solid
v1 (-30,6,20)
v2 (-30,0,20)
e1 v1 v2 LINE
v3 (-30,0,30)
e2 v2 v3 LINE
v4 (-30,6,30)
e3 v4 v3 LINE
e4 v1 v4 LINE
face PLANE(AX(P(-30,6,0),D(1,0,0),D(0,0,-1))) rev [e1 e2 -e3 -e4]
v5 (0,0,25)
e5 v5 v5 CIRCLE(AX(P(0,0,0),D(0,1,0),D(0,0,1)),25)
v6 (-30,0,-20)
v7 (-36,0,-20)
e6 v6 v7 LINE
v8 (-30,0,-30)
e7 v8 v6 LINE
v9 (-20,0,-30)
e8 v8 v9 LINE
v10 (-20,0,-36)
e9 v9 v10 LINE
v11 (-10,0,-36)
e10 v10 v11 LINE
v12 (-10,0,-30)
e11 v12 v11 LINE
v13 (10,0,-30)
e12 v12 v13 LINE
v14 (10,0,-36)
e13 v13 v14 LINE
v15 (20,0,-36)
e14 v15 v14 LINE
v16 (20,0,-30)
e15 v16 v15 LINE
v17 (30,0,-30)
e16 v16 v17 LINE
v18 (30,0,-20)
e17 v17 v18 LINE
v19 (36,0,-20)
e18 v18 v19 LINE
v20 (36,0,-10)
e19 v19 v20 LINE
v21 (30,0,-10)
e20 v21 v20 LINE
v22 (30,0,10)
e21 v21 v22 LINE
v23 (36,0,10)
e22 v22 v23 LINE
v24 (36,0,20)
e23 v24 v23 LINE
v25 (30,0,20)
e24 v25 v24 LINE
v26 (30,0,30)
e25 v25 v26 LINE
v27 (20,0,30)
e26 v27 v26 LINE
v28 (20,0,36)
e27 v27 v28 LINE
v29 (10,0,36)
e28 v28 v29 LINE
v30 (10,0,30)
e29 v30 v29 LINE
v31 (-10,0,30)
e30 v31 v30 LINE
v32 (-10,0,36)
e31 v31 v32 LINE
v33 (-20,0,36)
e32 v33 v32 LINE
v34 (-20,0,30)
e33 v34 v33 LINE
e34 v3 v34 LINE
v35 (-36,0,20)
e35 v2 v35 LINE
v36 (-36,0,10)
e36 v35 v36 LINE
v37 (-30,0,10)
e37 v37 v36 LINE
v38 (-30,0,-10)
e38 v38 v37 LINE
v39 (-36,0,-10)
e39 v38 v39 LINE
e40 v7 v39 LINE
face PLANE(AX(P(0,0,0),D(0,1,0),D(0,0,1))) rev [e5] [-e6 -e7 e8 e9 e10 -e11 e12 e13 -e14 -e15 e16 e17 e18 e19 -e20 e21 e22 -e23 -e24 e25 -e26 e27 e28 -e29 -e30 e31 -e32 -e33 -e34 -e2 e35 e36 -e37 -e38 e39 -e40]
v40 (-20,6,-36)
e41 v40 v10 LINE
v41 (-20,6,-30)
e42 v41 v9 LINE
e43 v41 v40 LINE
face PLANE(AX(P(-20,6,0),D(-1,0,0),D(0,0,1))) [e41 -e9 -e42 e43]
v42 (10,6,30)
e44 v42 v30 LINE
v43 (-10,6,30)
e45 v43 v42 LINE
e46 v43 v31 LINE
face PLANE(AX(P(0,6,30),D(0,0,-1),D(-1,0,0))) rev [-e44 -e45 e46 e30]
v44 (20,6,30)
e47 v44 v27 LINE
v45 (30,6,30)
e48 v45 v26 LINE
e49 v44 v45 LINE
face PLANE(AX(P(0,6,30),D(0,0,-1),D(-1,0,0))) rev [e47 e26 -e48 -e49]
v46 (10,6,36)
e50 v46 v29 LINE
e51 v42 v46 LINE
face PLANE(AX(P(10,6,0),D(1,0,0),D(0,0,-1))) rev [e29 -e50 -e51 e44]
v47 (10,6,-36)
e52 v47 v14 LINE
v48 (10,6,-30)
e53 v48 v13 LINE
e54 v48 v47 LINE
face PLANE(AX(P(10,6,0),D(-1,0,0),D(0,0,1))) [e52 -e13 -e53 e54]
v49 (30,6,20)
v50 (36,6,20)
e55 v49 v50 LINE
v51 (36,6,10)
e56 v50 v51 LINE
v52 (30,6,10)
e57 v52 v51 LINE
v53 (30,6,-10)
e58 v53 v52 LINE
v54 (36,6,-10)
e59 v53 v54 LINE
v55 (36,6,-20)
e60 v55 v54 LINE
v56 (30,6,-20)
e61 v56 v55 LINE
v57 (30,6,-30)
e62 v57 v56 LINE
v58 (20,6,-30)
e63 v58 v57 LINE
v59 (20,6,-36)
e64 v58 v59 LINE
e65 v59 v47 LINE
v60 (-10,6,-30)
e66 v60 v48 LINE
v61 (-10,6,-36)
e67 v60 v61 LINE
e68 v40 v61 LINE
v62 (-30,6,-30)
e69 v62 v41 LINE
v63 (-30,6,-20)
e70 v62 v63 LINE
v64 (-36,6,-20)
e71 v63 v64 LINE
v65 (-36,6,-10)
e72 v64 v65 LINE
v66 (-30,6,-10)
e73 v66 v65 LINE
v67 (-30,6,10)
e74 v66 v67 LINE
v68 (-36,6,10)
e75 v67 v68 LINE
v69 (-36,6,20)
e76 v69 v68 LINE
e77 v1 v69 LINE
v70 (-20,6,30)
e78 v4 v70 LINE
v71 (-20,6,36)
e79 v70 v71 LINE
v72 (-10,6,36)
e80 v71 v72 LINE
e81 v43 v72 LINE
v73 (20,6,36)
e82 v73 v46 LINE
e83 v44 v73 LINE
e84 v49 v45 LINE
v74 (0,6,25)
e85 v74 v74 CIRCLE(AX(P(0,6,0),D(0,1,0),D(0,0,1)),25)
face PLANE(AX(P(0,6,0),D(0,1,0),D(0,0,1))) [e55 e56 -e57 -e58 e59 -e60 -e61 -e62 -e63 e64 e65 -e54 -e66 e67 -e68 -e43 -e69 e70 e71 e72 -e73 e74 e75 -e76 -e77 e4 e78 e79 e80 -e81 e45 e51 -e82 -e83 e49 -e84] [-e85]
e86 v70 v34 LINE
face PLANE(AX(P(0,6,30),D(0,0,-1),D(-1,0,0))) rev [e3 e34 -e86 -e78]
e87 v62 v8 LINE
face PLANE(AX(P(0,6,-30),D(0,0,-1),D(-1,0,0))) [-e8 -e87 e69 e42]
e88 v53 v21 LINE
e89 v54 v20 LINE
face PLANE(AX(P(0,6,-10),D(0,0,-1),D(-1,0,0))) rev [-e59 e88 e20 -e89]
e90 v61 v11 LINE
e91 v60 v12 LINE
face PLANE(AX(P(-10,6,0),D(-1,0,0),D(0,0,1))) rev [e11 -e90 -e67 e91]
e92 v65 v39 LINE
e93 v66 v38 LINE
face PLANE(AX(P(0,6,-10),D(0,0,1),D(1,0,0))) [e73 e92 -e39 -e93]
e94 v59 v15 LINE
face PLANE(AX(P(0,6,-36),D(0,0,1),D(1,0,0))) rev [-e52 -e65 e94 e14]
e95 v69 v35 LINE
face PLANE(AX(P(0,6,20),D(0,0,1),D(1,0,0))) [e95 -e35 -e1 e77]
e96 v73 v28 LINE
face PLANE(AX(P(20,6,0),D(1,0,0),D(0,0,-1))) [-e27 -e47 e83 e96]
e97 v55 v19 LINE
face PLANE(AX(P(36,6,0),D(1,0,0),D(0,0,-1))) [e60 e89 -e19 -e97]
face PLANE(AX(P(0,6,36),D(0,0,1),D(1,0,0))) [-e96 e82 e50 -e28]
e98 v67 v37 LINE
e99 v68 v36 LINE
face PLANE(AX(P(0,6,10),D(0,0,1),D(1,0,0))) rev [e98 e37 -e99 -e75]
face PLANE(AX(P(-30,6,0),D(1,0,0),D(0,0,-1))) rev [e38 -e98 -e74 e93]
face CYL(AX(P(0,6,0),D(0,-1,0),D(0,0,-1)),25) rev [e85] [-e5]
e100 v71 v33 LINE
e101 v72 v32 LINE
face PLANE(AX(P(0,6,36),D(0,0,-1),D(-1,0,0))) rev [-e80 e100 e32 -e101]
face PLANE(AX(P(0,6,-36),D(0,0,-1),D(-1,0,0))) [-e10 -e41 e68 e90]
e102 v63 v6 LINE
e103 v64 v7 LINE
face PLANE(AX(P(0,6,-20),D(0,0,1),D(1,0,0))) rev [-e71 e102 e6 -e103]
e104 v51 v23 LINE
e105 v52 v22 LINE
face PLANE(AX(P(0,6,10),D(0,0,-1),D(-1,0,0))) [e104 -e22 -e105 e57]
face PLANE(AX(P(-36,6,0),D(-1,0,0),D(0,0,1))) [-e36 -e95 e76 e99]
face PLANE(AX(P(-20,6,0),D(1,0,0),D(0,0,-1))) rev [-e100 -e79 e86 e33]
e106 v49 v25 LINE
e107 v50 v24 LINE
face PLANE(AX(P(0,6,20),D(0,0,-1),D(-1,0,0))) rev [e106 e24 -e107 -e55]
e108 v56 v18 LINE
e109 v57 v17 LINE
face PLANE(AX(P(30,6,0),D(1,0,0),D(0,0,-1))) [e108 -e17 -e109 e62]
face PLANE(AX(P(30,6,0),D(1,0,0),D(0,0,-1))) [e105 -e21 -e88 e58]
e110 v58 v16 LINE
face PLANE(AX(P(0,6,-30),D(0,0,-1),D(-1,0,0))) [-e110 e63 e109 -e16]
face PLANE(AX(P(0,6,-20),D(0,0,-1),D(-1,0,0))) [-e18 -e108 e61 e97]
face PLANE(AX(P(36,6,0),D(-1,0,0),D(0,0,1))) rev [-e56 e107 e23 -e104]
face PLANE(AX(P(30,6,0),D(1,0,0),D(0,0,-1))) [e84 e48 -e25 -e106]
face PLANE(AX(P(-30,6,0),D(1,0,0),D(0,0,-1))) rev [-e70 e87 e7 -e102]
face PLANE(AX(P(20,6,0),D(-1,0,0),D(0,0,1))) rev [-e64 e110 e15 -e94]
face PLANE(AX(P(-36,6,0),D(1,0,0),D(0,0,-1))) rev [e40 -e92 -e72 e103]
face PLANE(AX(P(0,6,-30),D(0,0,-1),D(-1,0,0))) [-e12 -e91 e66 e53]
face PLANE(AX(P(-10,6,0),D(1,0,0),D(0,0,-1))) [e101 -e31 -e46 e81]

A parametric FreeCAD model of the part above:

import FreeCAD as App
import Part
import Sketcher

V = App.Vector
Q = App.Units.Quantity

doc = App.newDocument("Part")
body = doc.addObject("PartDesign::Body", "Body")

sketch1 = body.newObject("Sketcher::SketchObject", "Sketch")
sketch1.AttachmentSupport = (doc.getObject("XZ_Plane"), [""])
sketch1.MapMode = "FlatFace"
sketch1.addGeometry(Part.LineSegment(V(-30, 20, 0), V(-30, 30, 0)), False)
sketch1.addGeometry(Part.LineSegment(V(-30, 30, 0), V(-20, 30, 0)), False)
sketch1.addGeometry(Part.LineSegment(V(-20, 30, 0), V(-20, 36, 0)), False)
sketch1.addGeometry(Part.LineSegment(V(-20, 36, 0), V(-10, 36, 0)), False)
sketch1.addGeometry(Part.LineSegment(V(-10, 36, 0), V(-10, 30, 0)), False)
sketch1.addGeometry(Part.LineSegment(V(-10, 30, 0), V(10, 30, 0)), False)
sketch1.addGeometry(Part.LineSegment(V(10, 30, 0), V(10, 36, 0)), False)
sketch1.addGeometry(Part.LineSegment(V(10, 36, 0), V(20, 36, 0)), False)
sketch1.addGeometry(Part.LineSegment(V(20, 36, 0), V(20, 30, 0)), False)
sketch1.addGeometry(Part.LineSegment(V(20, 30, 0), V(30, 30, 0)), False)
sketch1.addGeometry(Part.LineSegment(V(30, 30, 0), V(30, 20, 0)), False)
sketch1.addGeometry(Part.LineSegment(V(30, 20, 0), V(36, 20, 0)), False)
sketch1.addGeometry(Part.LineSegment(V(36, 20, 0), V(36, 10, 0)), False)
sketch1.addGeometry(Part.LineSegment(V(36, 10, 0), V(30, 10, 0)), False)
sketch1.addGeometry(Part.LineSegment(V(30, 10, 0), V(30, -10, 0)), False)
sketch1.addGeometry(Part.LineSegment(V(30, -10, 0), V(36, -10, 0)), False)
sketch1.addGeometry(Part.LineSegment(V(36, -10, 0), V(36, -20, 0)), False)
sketch1.addGeometry(Part.LineSegment(V(36, -20, 0), V(30, -20, 0)), False)
sketch1.addGeometry(Part.LineSegment(V(30, -20, 0), V(30, -30, 0)), False)
sketch1.addGeometry(Part.LineSegment(V(30, -30, 0), V(20, -30, 0)), False)
sketch1.addGeometry(Part.LineSegment(V(20, -30, 0), V(20, -36, 0)), False)
sketch1.addGeometry(Part.LineSegment(V(20, -36, 0), V(10, -36, 0)), False)
sketch1.addGeometry(Part.LineSegment(V(10, -36, 0), V(10, -30, 0)), False)
sketch1.addGeometry(Part.LineSegment(V(10, -30, 0), V(-10, -30, 0)), False)
sketch1.addGeometry(Part.LineSegment(V(-10, -30, 0), V(-10, -36, 0)), False)
sketch1.addGeometry(Part.LineSegment(V(-10, -36, 0), V(-20, -36, 0)), False)
sketch1.addGeometry(Part.LineSegment(V(-20, -36, 0), V(-20, -30, 0)), False)
sketch1.addGeometry(Part.LineSegment(V(-20, -30, 0), V(-30, -30, 0)), False)
sketch1.addGeometry(Part.LineSegment(V(-30, -30, 0), V(-30, -20, 0)), False)
sketch1.addGeometry(Part.LineSegment(V(-30, -20, 0), V(-36, -20, 0)), False)
sketch1.addGeometry(Part.LineSegment(V(-36, -20, 0), V(-36, -10, 0)), False)
sketch1.addGeometry(Part.LineSegment(V(-36, -10, 0), V(-30, -10, 0)), False)
sketch1.addGeometry(Part.LineSegment(V(-30, -10, 0), V(-30, 10, 0)), False)
sketch1.addGeometry(Part.LineSegment(V(-30, 10, 0), V(-36, 10, 0)), False)
sketch1.addGeometry(Part.LineSegment(V(-36, 10, 0), V(-36, 20, 0)), False)
sketch1.addGeometry(Part.LineSegment(V(-36, 20, 0), V(-30, 20, 0)), False)
sketch1.addGeometry(Part.Circle(V(0, 0, 0), V(0, 0, 1), 25), False)
sketch1.addConstraint(Sketcher.Constraint("Coincident", 0, 2, 1, 1))
sketch1.addConstraint(Sketcher.Constraint("Coincident", 1, 2, 2, 1))
sketch1.addConstraint(Sketcher.Constraint("Coincident", 2, 2, 3, 1))
sketch1.addConstraint(Sketcher.Constraint("Coincident", 3, 2, 4, 1))
sketch1.addConstraint(Sketcher.Constraint("Coincident", 4, 2, 5, 1))
sketch1.addConstraint(Sketcher.Constraint("Coincident", 5, 2, 6, 1))
sketch1.addConstraint(Sketcher.Constraint("Coincident", 6, 2, 7, 1))
sketch1.addConstraint(Sketcher.Constraint("Coincident", 7, 2, 8, 1))
sketch1.addConstraint(Sketcher.Constraint("Coincident", 8, 2, 9, 1))
sketch1.addConstraint(Sketcher.Constraint("Coincident", 9, 2, 10, 1))
sketch1.addConstraint(Sketcher.Constraint("Coincident", 10, 2, 11, 1))
sketch1.addConstraint(Sketcher.Constraint("Coincident", 11, 2, 12, 1))
sketch1.addConstraint(Sketcher.Constraint("Coincident", 12, 2, 13, 1))
sketch1.addConstraint(Sketcher.Constraint("Coincident", 13, 2, 14, 1))
sketch1.addConstraint(Sketcher.Constraint("Coincident", 14, 2, 15, 1))
sketch1.addConstraint(Sketcher.Constraint("Coincident", 15, 2, 16, 1))
sketch1.addConstraint(Sketcher.Constraint("Coincident", 16, 2, 17, 1))
sketch1.addConstraint(Sketcher.Constraint("Coincident", 17, 2, 18, 1))
sketch1.addConstraint(Sketcher.Constraint("Coincident", 18, 2, 19, 1))
sketch1.addConstraint(Sketcher.Constraint("Coincident", 19, 2, 20, 1))
sketch1.addConstraint(Sketcher.Constraint("Coincident", 20, 2, 21, 1))
sketch1.addConstraint(Sketcher.Constraint("Coincident", 21, 2, 22, 1))
sketch1.addConstraint(Sketcher.Constraint("Coincident", 22, 2, 23, 1))
sketch1.addConstraint(Sketcher.Constraint("Coincident", 23, 2, 24, 1))
sketch1.addConstraint(Sketcher.Constraint("Coincident", 24, 2, 25, 1))
sketch1.addConstraint(Sketcher.Constraint("Coincident", 25, 2, 26, 1))
sketch1.addConstraint(Sketcher.Constraint("Coincident", 26, 2, 27, 1))
sketch1.addConstraint(Sketcher.Constraint("Coincident", 27, 2, 28, 1))
sketch1.addConstraint(Sketcher.Constraint("Coincident", 28, 2, 29, 1))
sketch1.addConstraint(Sketcher.Constraint("Coincident", 29, 2, 30, 1))
sketch1.addConstraint(Sketcher.Constraint("Coincident", 30, 2, 31, 1))
sketch1.addConstraint(Sketcher.Constraint("Coincident", 31, 2, 32, 1))
sketch1.addConstraint(Sketcher.Constraint("Coincident", 32, 2, 33, 1))
sketch1.addConstraint(Sketcher.Constraint("Coincident", 33, 2, 34, 1))
sketch1.addConstraint(Sketcher.Constraint("Coincident", 34, 2, 35, 1))
sketch1.addConstraint(Sketcher.Constraint("Coincident", 35, 2, 0, 1))
sketch1.addConstraint(Sketcher.Constraint("Vertical", 0))
sketch1.addConstraint(Sketcher.Constraint("Horizontal", 1))
sketch1.addConstraint(Sketcher.Constraint("Vertical", 2))
sketch1.addConstraint(Sketcher.Constraint("Horizontal", 3))
sketch1.addConstraint(Sketcher.Constraint("Vertical", 4))
sketch1.addConstraint(Sketcher.Constraint("Horizontal", 5))
sketch1.addConstraint(Sketcher.Constraint("Vertical", 6))
sketch1.addConstraint(Sketcher.Constraint("Horizontal", 7))
sketch1.addConstraint(Sketcher.Constraint("Vertical", 8))
sketch1.addConstraint(Sketcher.Constraint("Horizontal", 9))
sketch1.addConstraint(Sketcher.Constraint("Vertical", 10))
sketch1.addConstraint(Sketcher.Constraint("Horizontal", 11))
sketch1.addConstraint(Sketcher.Constraint("Vertical", 12))
sketch1.addConstraint(Sketcher.Constraint("Horizontal", 13))
sketch1.addConstraint(Sketcher.Constraint("Vertical", 14))
sketch1.addConstraint(Sketcher.Constraint("Horizontal", 15))
sketch1.addConstraint(Sketcher.Constraint("Vertical", 16))
sketch1.addConstraint(Sketcher.Constraint("Horizontal", 17))
sketch1.addConstraint(Sketcher.Constraint("Vertical", 18))
sketch1.addConstraint(Sketcher.Constraint("Horizontal", 19))
sketch1.addConstraint(Sketcher.Constraint("Vertical", 20))
sketch1.addConstraint(Sketcher.Constraint("Horizontal", 21))
sketch1.addConstraint(Sketcher.Constraint("Vertical", 22))
sketch1.addConstraint(Sketcher.Constraint("Horizontal", 23))
sketch1.addConstraint(Sketcher.Constraint("Vertical", 24))
sketch1.addConstraint(Sketcher.Constraint("Horizontal", 25))
sketch1.addConstraint(Sketcher.Constraint("Vertical", 26))
sketch1.addConstraint(Sketcher.Constraint("Horizontal", 27))
sketch1.addConstraint(Sketcher.Constraint("Vertical", 28))
sketch1.addConstraint(Sketcher.Constraint("Horizontal", 29))
sketch1.addConstraint(Sketcher.Constraint("Vertical", 30))
sketch1.addConstraint(Sketcher.Constraint("Horizontal", 31))
sketch1.addConstraint(Sketcher.Constraint("Vertical", 32))
sketch1.addConstraint(Sketcher.Constraint("Horizontal", 33))
sketch1.addConstraint(Sketcher.Constraint("Vertical", 34))
sketch1.addConstraint(Sketcher.Constraint("Horizontal", 35))
sketch1.addConstraint(Sketcher.Constraint("Coincident", 36, 3, -1, 1))
sketch1.addConstraint(Sketcher.Constraint("Symmetric", 0, 2, 18, 2, -1, 1))
sketch1.addConstraint(Sketcher.Constraint("Symmetric", 2, 2, 20, 2, -1, 1))
sketch1.addConstraint(Sketcher.Constraint("Symmetric", 4, 2, 22, 2, -1, 1))
sketch1.addConstraint(Sketcher.Constraint("Symmetric", 6, 2, 24, 2, -1, 1))
sketch1.addConstraint(Sketcher.Constraint("Symmetric", 8, 2, 26, 2, -1, 1))
sketch1.addConstraint(Sketcher.Constraint("Symmetric", 10, 2, 28, 2, -1, 1))
sketch1.addConstraint(Sketcher.Constraint("Symmetric", 12, 2, 30, 2, -1, 1))
sketch1.addConstraint(Sketcher.Constraint("Symmetric", 14, 2, 32, 2, -1, 1))
sketch1.addConstraint(Sketcher.Constraint("Symmetric", 16, 2, 34, 2, -1, 1))
sketch1.addConstraint(Sketcher.Constraint("Symmetric", 3, 2, 6, 2, -2))
sketch1.addConstraint(Sketcher.Constraint("Symmetric", 1, 2, 8, 2, -2))
sketch1.addConstraint(Sketcher.Constraint("Symmetric", 17, 2, 28, 2, -2))
sketch1.addConstraint(Sketcher.Constraint("Symmetric", 15, 2, 30, 2, -2))
sketch1.addConstraint(Sketcher.Constraint("Horizontal", 1, 2, 4, 2))
sketch1.addConstraint(Sketcher.Constraint("Vertical", 10, 2, 13, 2))
sketch1.addConstraint(Sketcher.Constraint("Equal", 1, 3))
sketch1.addConstraint(Sketcher.Constraint("Equal", 27, 0))
sketch1.addConstraint(Sketcher.Constraint("Equal", 35, 2))
sketch1.addConstraint(Sketcher.Constraint("Equal", 10, 12))
sketch1.addConstraint(Sketcher.Constraint("Equal", 23, 14))
sketch1.addConstraint(Sketcher.Constraint("Diameter", 36, Q("50 mm")))
sketch1.addConstraint(Sketcher.Constraint("DistanceX", 1, 1, 1, 2, Q("10 mm")))
sketch1.addConstraint(Sketcher.Constraint("DistanceX", 5, 1, 5, 2, Q("20 mm")))
sketch1.addConstraint(Sketcher.Constraint("DistanceX", 11, 1, 11, 2, Q("6 mm")))
pad1 = body.newObject("PartDesign::Pad", "Pad")
pad1.Profile = sketch1
pad1.Length = 6
pad1.Reversed = True

doc.recompute()
